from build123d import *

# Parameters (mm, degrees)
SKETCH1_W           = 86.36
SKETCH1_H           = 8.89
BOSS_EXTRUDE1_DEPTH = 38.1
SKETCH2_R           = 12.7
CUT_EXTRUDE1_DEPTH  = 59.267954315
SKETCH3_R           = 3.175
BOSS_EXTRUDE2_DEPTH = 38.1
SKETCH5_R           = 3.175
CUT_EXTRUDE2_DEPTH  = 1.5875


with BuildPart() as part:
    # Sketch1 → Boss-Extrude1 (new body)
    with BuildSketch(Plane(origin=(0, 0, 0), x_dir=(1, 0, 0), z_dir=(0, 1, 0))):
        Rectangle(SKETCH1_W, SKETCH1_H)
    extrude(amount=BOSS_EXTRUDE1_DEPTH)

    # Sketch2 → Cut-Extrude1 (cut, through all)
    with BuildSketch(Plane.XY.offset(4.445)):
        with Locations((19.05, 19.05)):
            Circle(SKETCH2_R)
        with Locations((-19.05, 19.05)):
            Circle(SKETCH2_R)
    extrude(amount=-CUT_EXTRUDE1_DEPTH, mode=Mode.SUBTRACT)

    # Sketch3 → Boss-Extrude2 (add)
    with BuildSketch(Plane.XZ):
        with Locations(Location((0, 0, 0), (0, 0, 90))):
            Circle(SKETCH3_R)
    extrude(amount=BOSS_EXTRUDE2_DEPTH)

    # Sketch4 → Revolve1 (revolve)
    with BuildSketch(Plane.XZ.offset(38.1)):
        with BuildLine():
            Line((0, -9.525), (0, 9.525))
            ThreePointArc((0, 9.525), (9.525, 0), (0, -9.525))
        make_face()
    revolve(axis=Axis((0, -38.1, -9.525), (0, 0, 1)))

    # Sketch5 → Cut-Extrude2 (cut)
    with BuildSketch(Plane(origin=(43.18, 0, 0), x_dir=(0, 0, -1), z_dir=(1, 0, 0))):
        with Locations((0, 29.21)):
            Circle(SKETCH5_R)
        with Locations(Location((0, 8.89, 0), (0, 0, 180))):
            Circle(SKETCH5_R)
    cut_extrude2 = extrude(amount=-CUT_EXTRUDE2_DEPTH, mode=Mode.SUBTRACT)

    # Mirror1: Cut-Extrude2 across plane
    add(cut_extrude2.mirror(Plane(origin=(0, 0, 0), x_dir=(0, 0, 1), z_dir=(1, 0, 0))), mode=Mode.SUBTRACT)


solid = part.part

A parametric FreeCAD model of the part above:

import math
import FreeCAD as App
import Part
import Sketcher

V = App.Vector
Q = App.Units.Quantity

doc = App.newDocument("Part")
body = doc.addObject("PartDesign::Body", "Body")

# Sketch on XZ plane
sketch1 = body.newObject("Sketcher::SketchObject", "Sketch")
sketch1.AttachmentSupport = (doc.getObject("XZ_Plane"), [""])
sketch1.MapMode = "FlatFace"
sketch1.addGeometry([
    Part.LineSegment(V(-43.18, -4.445, 0), V(-43.18, 4.445, 0)),
    Part.LineSegment(V(-43.18, 4.445, 0), V(43.18, 4.445, 0)),
    Part.LineSegment(V(43.18, 4.445, 0), V(43.18, -4.445, 0)),
    Part.LineSegment(V(43.18, -4.445, 0), V(-43.18, -4.445, 0)),
], False)
sketch1.addConstraint([
    Sketcher.Constraint("Coincident", 0, 2, 1, 1),
    Sketcher.Constraint("Coincident", 1, 2, 2, 1),
    Sketcher.Constraint("Coincident", 2, 2, 3, 1),
    Sketcher.Constraint("Coincident", 3, 2, 0, 1),
    Sketcher.Constraint("Vertical", 0),
    Sketcher.Constraint("Horizontal", 1),
    Sketcher.Constraint("Vertical", 2),
    Sketcher.Constraint("Horizontal", 3),
    Sketcher.Constraint("Symmetric", 0, 2, 2, 2, -1, 1),
    Sketcher.Constraint("DistanceX", 1, 1, 1, 2, Q("3.4 in")),
    Sketcher.Constraint("DistanceY", 0, 1, 0, 2, Q("0.35 in")),
])
pad1 = body.newObject("PartDesign::Pad", "Pad")
pad1.Profile = sketch1
pad1.Length = Q("1.5 in")
pad1.Reversed = True

# Sketch on XY plane
sketch2 = body.newObject("Sketcher::SketchObject", "Sketch001")
sketch2.AttachmentSupport = (doc.getObject("XY_Plane"), [""])
sketch2.MapMode = "FlatFace"
sketch2.AttachmentOffset = App.Placement(V(0, 0, 0.175 * 25.4), App.Rotation())
sketch2.addGeometry([
    Part.Circle(V(19.05, 19.05, 0), V(0, 0, 1), 12.7),
    Part.Circle(V(-19.05, 19.05, 0), V(0, 0, 1), 12.7),
], False)
sketch2.addConstraint([
    Sketcher.Constraint("Equal", 0, 1),
    Sketcher.Constraint("Symmetric", 0, 3, 1, 3, -2),
    Sketcher.Constraint("Diameter", 0, Q("1 in")),
    Sketcher.Constraint("DistanceX", 1, 3, 0, 3, Q("1.5 in")),
    Sketcher.Constraint("DistanceY", -1, 1, 0, 3, Q("0.75 in")),
])
pocket1 = body.newObject("PartDesign::Pocket", "Pocket")
pocket1.Profile = sketch2
pocket1.Type = "ThroughAll"

# Sketch on XZ plane
sketch3 = body.newObject("Sketcher::SketchObject", "Sketch002")
sketch3.AttachmentSupport = (doc.getObject("XZ_Plane"), [""])
sketch3.MapMode = "FlatFace"
sketch3.addGeometry(Part.Circle(V(0, 0, 0), V(0, 0, 1), 3.175), False)
sketch3.addConstraint([
    Sketcher.Constraint("Coincident", 0, 3, -1, 1),
    Sketcher.Constraint("Diameter", 0, Q("0.25 in")),
])
pad2 = body.newObject("PartDesign::Pad", "Pad001")
pad2.Profile = sketch3
pad2.Length = Q("1.5 in")

# Sketch on XZ plane
sketch4 = body.newObject("Sketcher::SketchObject", "Sketch003")
sketch4.AttachmentSupport = (doc.getObject("XZ_Plane"), [""])
sketch4.MapMode = "FlatFace"
sketch4.AttachmentOffset = App.Placement(V(0, 0, 1.5 * 25.4), App.Rotation())
sketch4.addGeometry([
    Part.LineSegment(V(0, 9.525, 0), V(0, -9.525, 0)),
    Part.ArcOfCircle(Part.Circle(V(0, 0, 0), V(0, 0, 1), 9.525), math.radians(-90), math.radians(90)),
], False)
sketch4.addConstraint([
    Sketcher.Constraint("Coincident", 0, 1, 1, 2),
    Sketcher.Constraint("Coincident", 1, 1, 0, 2),
    Sketcher.Constraint("Vertical", 0),
    Sketcher.Constraint("Coincident", 1, 3, -1, 1),
    Sketcher.Constraint("PointOnObject", 0, 1, -2),
    Sketcher.Constraint("Radius", 1, Q("0.375 in")),
])
revolution = body.newObject("PartDesign::Revolution", "Revolution")
revolution.Profile = sketch4
revolution.ReferenceAxis = (sketch4, ["V_Axis"])
revolution.Angle = 360

# Sketch on YZ plane
sketch5 = body.newObject("Sketcher::SketchObject", "Sketch004")
sketch5.AttachmentSupport = (doc.getObject("YZ_Plane"), [""])
sketch5.MapMode = "FlatFace"
sketch5.AttachmentOffset = App.Placement(V(0, 0, 1.7 * 25.4), App.Rotation())
sketch5.addGeometry([
    Part.Circle(V(29.21, 0, 0), V(0, 0, 1), 3.175),
    Part.Circle(V(8.89, 0, 0), V(0, 0, 1), 3.175),
], False)
sketch5.addConstraint([
    Sketcher.Constraint("Equal", 0, 1),
    Sketcher.Constraint("PointOnObject", 0, 3, -1),
    Sketcher.Constraint("PointOnObject", 1, 3, -1),
    Sketcher.Constraint("Diameter", 0, Q("0.25 in")),
    Sketcher.Constraint("DistanceX", 1, 3, 0, 3, Q("0.8 in")),
    Sketcher.Constraint("DistanceX", -1, 1, 0, 3, Q("1.15 in")),
])
pocket2 = body.newObject("PartDesign::Pocket", "Pocket001")
pocket2.Profile = sketch5
pocket2.Length = Q("0.0625 in")
doc.recompute()

mirrored = body.newObject("PartDesign::Mirrored", "Mirrored")
mirrored.Originals = [pocket2]
mirrored.MirrorPlane = (doc.getObject("YZ_Plane"), [""])
body.Tip = mirrored

doc.recompute()
